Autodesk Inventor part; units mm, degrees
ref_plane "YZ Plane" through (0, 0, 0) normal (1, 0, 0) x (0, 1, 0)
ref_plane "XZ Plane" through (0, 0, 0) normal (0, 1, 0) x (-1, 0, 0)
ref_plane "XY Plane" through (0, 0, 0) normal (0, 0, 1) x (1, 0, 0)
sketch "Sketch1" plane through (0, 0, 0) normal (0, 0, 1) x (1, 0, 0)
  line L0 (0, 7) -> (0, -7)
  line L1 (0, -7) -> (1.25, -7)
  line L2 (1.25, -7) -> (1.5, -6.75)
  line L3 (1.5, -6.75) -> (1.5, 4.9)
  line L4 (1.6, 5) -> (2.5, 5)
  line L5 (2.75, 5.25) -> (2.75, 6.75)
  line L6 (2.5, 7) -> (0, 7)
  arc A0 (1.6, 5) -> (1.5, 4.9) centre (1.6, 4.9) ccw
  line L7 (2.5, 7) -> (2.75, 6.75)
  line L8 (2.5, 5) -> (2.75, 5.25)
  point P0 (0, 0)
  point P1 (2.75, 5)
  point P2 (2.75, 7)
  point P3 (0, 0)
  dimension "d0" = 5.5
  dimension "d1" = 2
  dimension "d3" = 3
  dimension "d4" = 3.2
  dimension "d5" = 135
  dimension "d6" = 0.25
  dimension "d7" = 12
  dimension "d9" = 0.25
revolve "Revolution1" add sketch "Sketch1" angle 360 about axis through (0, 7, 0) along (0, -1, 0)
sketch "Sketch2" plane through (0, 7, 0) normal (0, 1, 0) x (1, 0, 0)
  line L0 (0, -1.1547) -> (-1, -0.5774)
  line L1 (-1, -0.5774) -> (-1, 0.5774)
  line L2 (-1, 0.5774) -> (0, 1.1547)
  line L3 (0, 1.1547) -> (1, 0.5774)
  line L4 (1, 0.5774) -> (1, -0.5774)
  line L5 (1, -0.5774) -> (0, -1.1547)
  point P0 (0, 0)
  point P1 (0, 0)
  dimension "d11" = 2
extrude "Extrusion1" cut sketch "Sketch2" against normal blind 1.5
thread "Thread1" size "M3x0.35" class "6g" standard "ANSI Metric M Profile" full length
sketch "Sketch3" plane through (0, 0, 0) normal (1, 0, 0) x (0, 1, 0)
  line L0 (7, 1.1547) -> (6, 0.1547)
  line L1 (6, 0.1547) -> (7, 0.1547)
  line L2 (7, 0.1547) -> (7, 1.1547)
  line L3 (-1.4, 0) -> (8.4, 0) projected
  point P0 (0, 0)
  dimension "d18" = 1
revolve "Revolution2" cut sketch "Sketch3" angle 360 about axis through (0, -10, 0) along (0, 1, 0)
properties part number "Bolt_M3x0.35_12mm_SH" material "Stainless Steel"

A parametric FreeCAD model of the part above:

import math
import FreeCAD as App
import Part
import Sketcher
from FreeCAD import Vector


def add_polygon(sketch, points):
    """Adds a closed chain of lines whose ends are joined by coincident constraints."""
    first, n = sketch.GeometryCount, len(points)
    for a, b in zip(points, points[1:] + points[:1]):
        sketch.addGeometry(Part.LineSegment(App.Vector(*a, 0), App.Vector(*b, 0)), False)
    for i in range(n):
        sketch.addConstraint(Sketcher.Constraint("Coincident", first + i, 2, first + (i + 1) % n, 1))

doc = App.newDocument("Part")
body = doc.addObject("PartDesign::Body", "Body")

# Sketch on XY plane
sketch1 = body.newObject("Sketcher::SketchObject", "Sketch")
sketch1.AttachmentSupport = (doc.getObject("XY_Plane"), [""])
sketch1.MapMode = "FlatFace"
sketch1.addGeometry([
    Part.LineSegment(Vector(2.5, 7, 0), Vector(0, 7, 0)),  # 0
    Part.LineSegment(Vector(0, 7, 0), Vector(0, -7, 0)),  # 1
    Part.LineSegment(Vector(0, -7, 0), Vector(1.25, -7, 0)),  # 2
    Part.LineSegment(Vector(1.25, -7, 0), Vector(1.5, -6.75, 0)),  # 3
    Part.LineSegment(Vector(1.5, -6.75, 0), Vector(1.5, 4.9, 0)),  # 4
    Part.ArcOfCircle(Part.Circle(Vector(1.6, 4.9, 0), Vector(0, 0, 1), 0.1), math.radians(90), math.radians(180)),  # 5
    Part.LineSegment(Vector(1.6, 5, 0), Vector(2.5, 5, 0)),  # 6
    Part.LineSegment(Vector(2.5, 5, 0), Vector(2.75, 5.25, 0)),  # 7
    Part.LineSegment(Vector(2.75, 5.25, 0), Vector(2.75, 6.75, 0)),  # 8
    Part.LineSegment(Vector(2.75, 6.75, 0), Vector(2.5, 7, 0)),  # 9
], False)
sketch1.addConstraint([
    Sketcher.Constraint("Coincident", 0, 2, 1, 1),
    Sketcher.Constraint("Coincident", 1, 2, 2, 1),
    Sketcher.Constraint("Coincident", 2, 2, 3, 1),
    Sketcher.Constraint("Coincident", 3, 2, 4, 1),
    Sketcher.Constraint("Tangent", 4, 2, 5, 2),
    Sketcher.Constraint("Tangent", 5, 1, 6, 1),
    Sketcher.Constraint("Coincident", 6, 2, 7, 1),
    Sketcher.Constraint("Coincident", 7, 2, 8, 1),
    Sketcher.Constraint("Coincident", 8, 2, 9, 1),
    Sketcher.Constraint("Coincident", 9, 2, 0, 1),
    Sketcher.Constraint("Horizontal", 0),
    Sketcher.Constraint("Vertical", 1),
    Sketcher.Constraint("Horizontal", 2),
    Sketcher.Constraint("Vertical", 4),
    Sketcher.Constraint("Horizontal", 6),
    Sketcher.Constraint("Vertical", 8),
    Sketcher.Constraint("Symmetric", 0, 2, 1, 2, -1, 1),
    Sketcher.Constraint("Parallel", 3, 7),
    Sketcher.Constraint("Perpendicular", 7, 9),
    Sketcher.Constraint("Vertical", 6, 2, 9, 2),
    Sketcher.Constraint("Equal", 3, 7),
    Sketcher.Constraint("Equal", 7, 9),
    Sketcher.Constraint("DistanceY", 5, 1, 0, 2, 2.0),
    Sketcher.Constraint("DistanceY", 2, 2, 5, 1, 12.0),
    Sketcher.Constraint("Radius", 5, 0.1),
    Sketcher.Constraint("DistanceX", 2, 2, 3, 2, 0.25),
    Sketcher.Constraint("DistanceX", 0, 2, 0, 1, 2.5),
    Sketcher.Constraint("DistanceX", 6, 1, 6, 2, 0.9),
])
revolution = body.newObject("PartDesign::Revolution", "Revolution")
revolution.Profile = sketch1
revolution.ReferenceAxis = (sketch1, ["V_Axis"])
revolution.Angle = 360

# Sketch on XZ plane
sketch2 = body.newObject("Sketcher::SketchObject", "Sketch001")
sketch2.AttachmentSupport = (doc.getObject("XZ_Plane"), [""])
sketch2.MapMode = "FlatFace"
sketch2.AttachmentOffset = App.Placement(Vector(0, 0, -7), App.Rotation())
add_polygon(sketch2, [(-1, 0.5774), (0, 1.1547), (1, 0.5774), (1, -0.5774), (0, -1.1547), (-1, -0.5774)])  # lines 0-5
sketch2.addConstraint([
    Sketcher.Constraint("Vertical", 2),
    Sketcher.Constraint("Vertical", 5),
    Sketcher.Constraint("Symmetric", 0, 2, 3, 2, -1, 1),
    Sketcher.Constraint("Symmetric", 1, 2, 4, 2, -1, 1),
    Sketcher.Constraint("PointOnObject", 0, 2, -2),
    Sketcher.Constraint("Parallel", 0, 3),
    Sketcher.Constraint("Horizontal", 2, 2, 4, 2),
    Sketcher.Constraint("DistanceX", 4, 2, 2, 2, 2.0),
    Sketcher.Constraint("DistanceY", 2, 2, 2, 1, 1.1548),
    Sketcher.Constraint("DistanceY", 2, 2, 0, 2, 1.732),
])
pocket1 = body.newObject("PartDesign::Pocket", "Pocket")
pocket1.Profile = sketch2
pocket1.Length = 1.5
pocket1.Reversed = True

# Sketch on YZ plane
sketch3 = body.newObject("Sketcher::SketchObject", "Sketch002")
sketch3.AttachmentSupport = (doc.getObject("YZ_Plane"), [""])
sketch3.MapMode = "FlatFace"
add_polygon(sketch3, [(7, 0.1547), (7, 1.1547), (6, 0.1547)])  # lines 0-2
sketch3.addConstraint([
    Sketcher.Constraint("Vertical", 0),
    Sketcher.Constraint("Horizontal", 2),
    Sketcher.Constraint("Equal", 2, 0),
    Sketcher.Constraint("DistanceX", 2, 1, 2, 2, 1.0),
    Sketcher.Constraint("DistanceX", -1, 1, 0, 2, 7.0),
    Sketcher.Constraint("DistanceY", -1, 1, 0, 2, 1.1547),
])
groove = body.newObject("PartDesign::Groove", "Groove")
groove.Profile = sketch3
groove.ReferenceAxis = (sketch3, ["H_Axis"])
groove.Angle = 360

doc.recompute()
